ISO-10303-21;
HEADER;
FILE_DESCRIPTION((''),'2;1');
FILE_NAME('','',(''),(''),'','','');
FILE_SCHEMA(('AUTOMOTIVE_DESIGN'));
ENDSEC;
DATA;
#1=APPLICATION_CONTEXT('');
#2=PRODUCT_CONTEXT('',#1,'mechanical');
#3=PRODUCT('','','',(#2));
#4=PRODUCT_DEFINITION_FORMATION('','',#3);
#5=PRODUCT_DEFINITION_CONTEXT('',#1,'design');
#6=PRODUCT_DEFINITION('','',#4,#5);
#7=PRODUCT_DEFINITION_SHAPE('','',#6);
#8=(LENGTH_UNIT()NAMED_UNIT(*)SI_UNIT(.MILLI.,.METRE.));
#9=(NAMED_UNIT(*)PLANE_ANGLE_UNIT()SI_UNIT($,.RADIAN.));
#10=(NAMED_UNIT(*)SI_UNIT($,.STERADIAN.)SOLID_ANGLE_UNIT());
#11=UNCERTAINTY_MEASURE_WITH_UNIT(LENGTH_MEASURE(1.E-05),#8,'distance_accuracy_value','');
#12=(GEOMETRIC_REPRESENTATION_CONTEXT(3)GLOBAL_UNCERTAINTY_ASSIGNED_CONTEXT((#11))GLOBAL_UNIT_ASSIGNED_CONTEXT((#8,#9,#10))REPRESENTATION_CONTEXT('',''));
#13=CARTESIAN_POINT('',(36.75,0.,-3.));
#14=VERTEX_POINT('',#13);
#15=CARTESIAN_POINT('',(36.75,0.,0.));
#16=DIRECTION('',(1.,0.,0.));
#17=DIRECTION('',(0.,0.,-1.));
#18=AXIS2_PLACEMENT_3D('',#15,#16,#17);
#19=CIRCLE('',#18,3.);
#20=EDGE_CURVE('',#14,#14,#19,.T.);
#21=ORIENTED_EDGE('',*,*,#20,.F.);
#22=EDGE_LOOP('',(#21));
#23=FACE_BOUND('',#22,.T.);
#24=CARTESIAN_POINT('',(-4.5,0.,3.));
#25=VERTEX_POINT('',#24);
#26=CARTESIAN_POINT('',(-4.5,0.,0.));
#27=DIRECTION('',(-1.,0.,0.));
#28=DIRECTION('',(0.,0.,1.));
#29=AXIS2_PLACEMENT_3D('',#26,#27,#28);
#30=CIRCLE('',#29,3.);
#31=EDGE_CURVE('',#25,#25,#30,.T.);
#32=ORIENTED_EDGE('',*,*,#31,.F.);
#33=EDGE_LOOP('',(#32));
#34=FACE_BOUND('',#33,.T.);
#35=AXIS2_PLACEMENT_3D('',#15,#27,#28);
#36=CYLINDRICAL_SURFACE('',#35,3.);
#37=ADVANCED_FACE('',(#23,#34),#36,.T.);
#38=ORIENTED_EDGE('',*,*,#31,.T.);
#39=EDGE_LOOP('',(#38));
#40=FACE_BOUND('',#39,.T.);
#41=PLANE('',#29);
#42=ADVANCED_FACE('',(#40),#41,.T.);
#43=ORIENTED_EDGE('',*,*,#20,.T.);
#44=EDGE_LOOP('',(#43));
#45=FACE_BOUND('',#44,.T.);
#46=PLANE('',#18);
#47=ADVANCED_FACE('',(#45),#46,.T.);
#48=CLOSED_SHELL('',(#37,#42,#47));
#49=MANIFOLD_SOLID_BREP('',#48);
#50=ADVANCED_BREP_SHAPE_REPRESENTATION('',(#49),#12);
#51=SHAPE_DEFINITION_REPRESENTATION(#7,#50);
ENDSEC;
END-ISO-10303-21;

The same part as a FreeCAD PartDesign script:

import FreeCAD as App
import Part
import Sketcher
from FreeCAD import Vector
Q = App.Units.Quantity

doc = App.newDocument("Part")
body = doc.addObject("PartDesign::Body", "Body")

# Sketch on YZ plane
sketch1 = body.newObject("Sketcher::SketchObject", "Sketch")
sketch1.AttachmentSupport = (doc.getObject("YZ_Plane"), [""])
sketch1.MapMode = "FlatFace"
sketch1.addGeometry(Part.Circle(Vector(0, 0, 0), Vector(0, 0, 1), 3), False)
sketch1.addConstraint(Sketcher.Constraint("Coincident", 0, 3, -1, 1))
sketch1.addConstraint(Sketcher.Constraint("Diameter", 0, Q("6 mm")))
pad1 = body.newObject("PartDesign::Pad", "Pad")
pad1.Profile = sketch1
pad1.Length = 36.75

# Sketch on YZ plane
sketch2 = body.newObject("Sketcher::SketchObject", "Sketch001")
sketch2.AttachmentSupport = (doc.getObject("YZ_Plane"), [""])
sketch2.MapMode = "FlatFace"
sketch2.addGeometry(Part.Circle(Vector(0, 0, 0), Vector(0, 0, 1), 3), False)
sketch2.addConstraint(Sketcher.Constraint("Coincident", 0, 3, -1, 1))
sketch2.addConstraint(Sketcher.Constraint("Diameter", 0, Q("6 mm")))
pad2 = body.newObject("PartDesign::Pad", "Pad001")
pad2.Profile = sketch2
pad2.Length = 4.5
pad2.Reversed = True

doc.recompute()
